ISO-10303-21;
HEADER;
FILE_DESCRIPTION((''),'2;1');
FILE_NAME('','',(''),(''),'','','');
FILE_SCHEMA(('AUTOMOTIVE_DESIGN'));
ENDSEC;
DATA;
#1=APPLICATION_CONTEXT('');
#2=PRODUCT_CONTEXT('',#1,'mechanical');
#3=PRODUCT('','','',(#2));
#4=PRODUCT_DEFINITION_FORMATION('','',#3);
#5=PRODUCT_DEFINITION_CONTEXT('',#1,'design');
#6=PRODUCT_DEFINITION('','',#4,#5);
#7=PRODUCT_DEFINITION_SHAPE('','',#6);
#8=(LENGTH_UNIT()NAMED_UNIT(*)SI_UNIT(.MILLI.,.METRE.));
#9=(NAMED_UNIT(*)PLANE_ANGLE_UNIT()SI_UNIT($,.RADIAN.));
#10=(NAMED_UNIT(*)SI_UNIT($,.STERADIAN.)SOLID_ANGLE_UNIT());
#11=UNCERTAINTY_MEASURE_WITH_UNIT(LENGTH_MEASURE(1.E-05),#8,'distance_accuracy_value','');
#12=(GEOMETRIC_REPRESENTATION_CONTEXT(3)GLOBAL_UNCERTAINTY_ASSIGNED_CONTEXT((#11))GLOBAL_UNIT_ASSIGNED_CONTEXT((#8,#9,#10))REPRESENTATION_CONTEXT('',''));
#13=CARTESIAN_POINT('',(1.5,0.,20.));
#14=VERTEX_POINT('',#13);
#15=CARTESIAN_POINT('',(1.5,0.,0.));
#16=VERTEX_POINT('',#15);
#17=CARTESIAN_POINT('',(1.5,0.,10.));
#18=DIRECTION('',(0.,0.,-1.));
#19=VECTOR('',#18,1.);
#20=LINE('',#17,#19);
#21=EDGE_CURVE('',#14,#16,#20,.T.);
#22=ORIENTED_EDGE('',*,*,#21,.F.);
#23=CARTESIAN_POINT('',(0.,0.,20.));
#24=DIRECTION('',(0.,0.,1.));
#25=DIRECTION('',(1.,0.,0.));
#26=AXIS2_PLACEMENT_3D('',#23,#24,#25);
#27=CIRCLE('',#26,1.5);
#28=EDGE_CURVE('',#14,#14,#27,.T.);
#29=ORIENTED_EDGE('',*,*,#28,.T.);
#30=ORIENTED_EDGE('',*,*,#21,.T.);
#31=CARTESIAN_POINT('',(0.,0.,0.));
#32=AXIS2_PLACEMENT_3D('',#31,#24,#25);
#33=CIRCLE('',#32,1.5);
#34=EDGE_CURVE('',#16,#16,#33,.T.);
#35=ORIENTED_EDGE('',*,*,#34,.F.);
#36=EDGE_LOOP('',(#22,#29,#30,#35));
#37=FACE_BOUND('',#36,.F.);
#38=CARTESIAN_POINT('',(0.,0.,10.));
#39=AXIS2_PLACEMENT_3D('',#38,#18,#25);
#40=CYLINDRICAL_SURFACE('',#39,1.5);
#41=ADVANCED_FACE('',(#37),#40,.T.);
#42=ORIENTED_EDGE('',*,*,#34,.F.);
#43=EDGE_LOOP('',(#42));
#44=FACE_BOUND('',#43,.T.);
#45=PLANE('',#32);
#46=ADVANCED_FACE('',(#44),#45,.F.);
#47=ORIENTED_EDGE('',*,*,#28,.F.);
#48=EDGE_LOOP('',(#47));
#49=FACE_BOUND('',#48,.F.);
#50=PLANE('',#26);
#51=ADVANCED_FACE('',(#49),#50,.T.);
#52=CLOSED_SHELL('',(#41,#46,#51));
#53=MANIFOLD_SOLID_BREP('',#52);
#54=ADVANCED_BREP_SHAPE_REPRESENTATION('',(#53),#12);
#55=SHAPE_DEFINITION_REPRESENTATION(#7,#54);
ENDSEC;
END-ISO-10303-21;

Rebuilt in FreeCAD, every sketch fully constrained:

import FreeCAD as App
import Part
import Sketcher
from FreeCAD import Vector
Q = App.Units.Quantity


def add_polygon(sketch, points):
    """Adds a closed chain of lines whose ends are joined by coincident constraints."""
    first, n = sketch.GeometryCount, len(points)
    for a, b in zip(points, points[1:] + points[:1]):
        sketch.addGeometry(Part.LineSegment(App.Vector(*a, 0), App.Vector(*b, 0)), False)
    for i in range(n):
        sketch.addConstraint(Sketcher.Constraint("Coincident", first + i, 2, first + (i + 1) % n, 1))

doc = App.newDocument("Part")
body = doc.addObject("PartDesign::Body", "Body")

sketch1 = body.newObject("Sketcher::SketchObject", "Sketch")
sketch1.AttachmentSupport = (doc.getObject("XZ_Plane"), [""])
sketch1.MapMode = "FlatFace"
add_polygon(sketch1, [(0, 0), (0, 20), (1.5, 20), (1.5, 0)])
sketch1.addConstraint([
    Sketcher.Constraint("Vertical", 0),
    Sketcher.Constraint("Horizontal", 1),
    Sketcher.Constraint("Vertical", 2),
    Sketcher.Constraint("Horizontal", 3),
    Sketcher.Constraint("Coincident", 3, 2, -1, 1),
    Sketcher.Constraint("DistanceY", 0, 1, 0, 2, Q("20 mm")),
    Sketcher.Constraint("DistanceX", 1, 1, 1, 2, Q("1.5 mm")),
])
revolution = body.newObject("PartDesign::Revolution", "Revolution")
revolution.Profile = sketch1
revolution.ReferenceAxis = (sketch1, ["V_Axis"])
revolution.Angle = 360

doc.recompute()
